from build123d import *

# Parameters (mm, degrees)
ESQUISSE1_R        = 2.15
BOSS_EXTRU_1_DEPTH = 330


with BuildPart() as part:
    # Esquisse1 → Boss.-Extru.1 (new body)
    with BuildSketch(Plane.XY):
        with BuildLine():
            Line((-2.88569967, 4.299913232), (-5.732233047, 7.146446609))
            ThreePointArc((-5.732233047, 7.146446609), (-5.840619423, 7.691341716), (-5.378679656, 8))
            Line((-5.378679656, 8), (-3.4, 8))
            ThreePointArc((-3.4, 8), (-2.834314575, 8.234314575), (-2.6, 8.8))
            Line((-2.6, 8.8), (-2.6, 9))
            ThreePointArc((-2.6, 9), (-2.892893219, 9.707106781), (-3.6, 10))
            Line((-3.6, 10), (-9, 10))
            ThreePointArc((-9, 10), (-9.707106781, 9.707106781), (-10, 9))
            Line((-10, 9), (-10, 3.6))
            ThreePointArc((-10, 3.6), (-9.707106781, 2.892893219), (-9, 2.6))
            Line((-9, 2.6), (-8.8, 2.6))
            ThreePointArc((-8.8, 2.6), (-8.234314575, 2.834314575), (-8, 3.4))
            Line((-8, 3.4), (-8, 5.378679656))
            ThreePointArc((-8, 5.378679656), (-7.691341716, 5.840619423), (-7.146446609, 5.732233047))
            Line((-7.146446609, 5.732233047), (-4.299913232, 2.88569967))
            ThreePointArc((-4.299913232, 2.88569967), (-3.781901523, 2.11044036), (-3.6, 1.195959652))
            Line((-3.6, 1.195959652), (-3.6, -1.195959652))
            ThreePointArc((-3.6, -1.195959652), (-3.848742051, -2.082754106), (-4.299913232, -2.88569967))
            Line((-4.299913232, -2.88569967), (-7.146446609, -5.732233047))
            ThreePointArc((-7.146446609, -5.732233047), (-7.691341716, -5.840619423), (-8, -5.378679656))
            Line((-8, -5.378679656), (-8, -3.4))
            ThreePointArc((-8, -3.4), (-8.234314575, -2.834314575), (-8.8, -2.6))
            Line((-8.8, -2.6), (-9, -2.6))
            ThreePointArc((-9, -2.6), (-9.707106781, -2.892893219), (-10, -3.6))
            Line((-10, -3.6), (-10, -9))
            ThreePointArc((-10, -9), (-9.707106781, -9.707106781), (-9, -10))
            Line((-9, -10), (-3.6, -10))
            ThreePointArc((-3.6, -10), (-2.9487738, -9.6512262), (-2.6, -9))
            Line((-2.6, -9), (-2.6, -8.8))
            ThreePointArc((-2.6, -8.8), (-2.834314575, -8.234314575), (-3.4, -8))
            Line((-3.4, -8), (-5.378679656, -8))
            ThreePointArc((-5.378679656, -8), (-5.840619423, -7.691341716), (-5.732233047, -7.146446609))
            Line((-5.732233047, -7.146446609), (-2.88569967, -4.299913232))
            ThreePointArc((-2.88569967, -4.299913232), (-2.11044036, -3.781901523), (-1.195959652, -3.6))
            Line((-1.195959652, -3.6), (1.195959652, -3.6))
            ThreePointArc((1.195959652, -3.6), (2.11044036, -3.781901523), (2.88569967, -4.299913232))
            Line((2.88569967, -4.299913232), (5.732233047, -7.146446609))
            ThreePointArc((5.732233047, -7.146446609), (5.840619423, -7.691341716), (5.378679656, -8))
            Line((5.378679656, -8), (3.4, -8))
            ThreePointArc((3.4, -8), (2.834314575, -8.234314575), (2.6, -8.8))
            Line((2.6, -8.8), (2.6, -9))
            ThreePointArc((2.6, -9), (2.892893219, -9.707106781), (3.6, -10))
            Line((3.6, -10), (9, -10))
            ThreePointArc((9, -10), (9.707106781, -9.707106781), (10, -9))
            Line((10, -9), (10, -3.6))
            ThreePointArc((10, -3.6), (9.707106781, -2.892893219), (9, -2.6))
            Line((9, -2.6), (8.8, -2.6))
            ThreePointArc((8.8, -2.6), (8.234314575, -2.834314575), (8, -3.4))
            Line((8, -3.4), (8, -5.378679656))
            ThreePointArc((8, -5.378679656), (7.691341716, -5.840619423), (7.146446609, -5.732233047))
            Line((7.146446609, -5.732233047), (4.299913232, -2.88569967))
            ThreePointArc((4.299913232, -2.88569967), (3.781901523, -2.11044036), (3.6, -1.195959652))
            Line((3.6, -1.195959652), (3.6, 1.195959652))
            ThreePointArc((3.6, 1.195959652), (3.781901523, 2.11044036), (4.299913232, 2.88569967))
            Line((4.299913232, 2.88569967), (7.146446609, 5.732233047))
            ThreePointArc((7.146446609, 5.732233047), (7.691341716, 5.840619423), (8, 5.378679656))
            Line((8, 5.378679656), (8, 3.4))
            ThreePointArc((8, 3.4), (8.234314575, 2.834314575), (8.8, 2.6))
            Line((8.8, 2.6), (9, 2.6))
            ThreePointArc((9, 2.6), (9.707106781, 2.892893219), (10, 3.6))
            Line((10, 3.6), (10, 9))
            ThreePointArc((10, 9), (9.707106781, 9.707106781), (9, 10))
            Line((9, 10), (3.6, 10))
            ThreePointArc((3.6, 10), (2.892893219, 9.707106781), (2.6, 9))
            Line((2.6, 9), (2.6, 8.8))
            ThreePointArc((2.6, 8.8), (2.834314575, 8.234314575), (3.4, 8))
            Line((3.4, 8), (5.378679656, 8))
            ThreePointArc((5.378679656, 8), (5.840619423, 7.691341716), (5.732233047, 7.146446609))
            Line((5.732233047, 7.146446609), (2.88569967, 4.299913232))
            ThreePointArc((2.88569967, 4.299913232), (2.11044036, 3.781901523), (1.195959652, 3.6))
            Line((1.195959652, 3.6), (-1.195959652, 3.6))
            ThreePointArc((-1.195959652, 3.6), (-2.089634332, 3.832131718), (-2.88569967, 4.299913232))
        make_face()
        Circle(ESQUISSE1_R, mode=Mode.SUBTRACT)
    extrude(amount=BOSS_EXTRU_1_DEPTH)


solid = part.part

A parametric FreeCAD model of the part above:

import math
import FreeCAD as App
import Part
import Sketcher

V = App.Vector
Q = App.Units.Quantity

doc = App.newDocument("Part")
body = doc.addObject("PartDesign::Body", "Body")

# Sketch on XY plane
sketch1 = body.newObject("Sketcher::SketchObject", "Sketch")
sketch1.AttachmentSupport = (doc.getObject("XY_Plane"), [""])
sketch1.MapMode = "FlatFace"
sketch1.addGeometry(Part.LineSegment(V(-2.89, 4.3, 0), V(-5.73, 7.15, 0)), False)
sketch1.addGeometry(Part.ArcOfCircle(Part.Circle(V(-5.38, 7.5, 0), V(0, 0, 1), 0.5), math.radians(90), math.radians(225)), False)
sketch1.addGeometry(Part.LineSegment(V(-5.38, 8, 0), V(-3.4, 8, 0)), False)
sketch1.addGeometry(Part.ArcOfCircle(Part.Circle(V(-3.4, 8.8, 0), V(0, 0, 1), 0.8), math.radians(-90), math.radians(0)), False)
sketch1.addGeometry(Part.LineSegment(V(-2.6, 8.8, 0), V(-2.6, 9, 0)), False)
sketch1.addGeometry(Part.ArcOfCircle(Part.Circle(V(-3.6, 9, 0), V(0, 0, 1), 1), math.radians(0), math.radians(90)), False)
sketch1.addGeometry(Part.LineSegment(V(-3.6, 10, 0), V(-9, 10, 0)), False)
sketch1.addGeometry(Part.ArcOfCircle(Part.Circle(V(-9, 9, 0), V(0, 0, 1), 1), math.radians(90), math.radians(180)), False)
sketch1.addGeometry(Part.LineSegment(V(-10, 9, 0), V(-10, 3.6, 0)), False)
sketch1.addGeometry(Part.ArcOfCircle(Part.Circle(V(-9, 3.6, 0), V(0, 0, 1), 1), math.radians(-180), math.radians(-90)), False)
sketch1.addGeometry(Part.LineSegment(V(-9, 2.6, 0), V(-8.8, 2.6, 0)), False)
sketch1.addGeometry(Part.ArcOfCircle(Part.Circle(V(-8.8, 3.4, 0), V(0, 0, 1), 0.8), math.radians(-90), math.radians(0)), False)
sketch1.addGeometry(Part.LineSegment(V(-8, 3.4, 0), V(-8, 5.38, 0)), False)
sketch1.addGeometry(Part.ArcOfCircle(Part.Circle(V(-7.5, 5.38, 0), V(0, 0, 1), 0.5), math.radians(45), math.radians(180)), False)
sketch1.addGeometry(Part.LineSegment(V(-7.15, 5.73, 0), V(-4.3, 2.89, 0)), False)
sketch1.addGeometry(Part.ArcOfCircle(Part.Circle(V(-5.99, 1.2, 0), V(0, 0, 1), 2.39), math.radians(0), math.radians(45)), False)
sketch1.addGeometry(Part.LineSegment(V(-3.6, 1.2, 0), V(-3.6, -1.2, 0)), False)
sketch1.addGeometry(Part.ArcOfCircle(Part.Circle(V(-7.43, -0.6, 0), V(0, 0, 1), 3.87), math.radians(-36), math.radians(-9)), False)
sketch1.addGeometry(Part.LineSegment(V(-4.3, -2.89, 0), V(-7.15, -5.73, 0)), False)
sketch1.addGeometry(Part.ArcOfCircle(Part.Circle(V(-7.5, -5.38, 0), V(0, 0, 1), 0.5), math.radians(180), math.radians(315)), False)
sketch1.addGeometry(Part.LineSegment(V(-8, -5.38, 0), V(-8, -3.4, 0)), False)
sketch1.addGeometry(Part.ArcOfCircle(Part.Circle(V(-8.8, -3.4, 0), V(0, 0, 1), 0.8), math.radians(0), math.radians(90)), False)
sketch1.addGeometry(Part.LineSegment(V(-8.8, -2.6, 0), V(-9, -2.6, 0)), False)
sketch1.addGeometry(Part.ArcOfCircle(Part.Circle(V(-9, -3.6, 0), V(0, 0, 1), 1), math.radians(90), math.radians(180)), False)
sketch1.addGeometry(Part.LineSegment(V(-10, -3.6, 0), V(-10, -9, 0)), False)
sketch1.addGeometry(Part.ArcOfCircle(Part.Circle(V(-9, -9, 0), V(0, 0, 1), 1), math.radians(-180), math.radians(-90)), False)
sketch1.addGeometry(Part.LineSegment(V(-9, -10, 0), V(-3.6, -10, 0)), False)
sketch1.addGeometry(Part.ArcOfCircle(Part.Circle(V(-3.85, -8.75, 0), V(0, 0, 1), 1.28), math.radians(-79), math.radians(-11)), False)
sketch1.addGeometry(Part.LineSegment(V(-2.6, -9, 0), V(-2.6, -8.8, 0)), False)
sketch1.addGeometry(Part.ArcOfCircle(Part.Circle(V(-3.4, -8.8, 0), V(0, 0, 1), 0.8), math.radians(0), math.radians(90)), False)
sketch1.addGeometry(Part.LineSegment(V(-3.4, -8, 0), V(-5.38, -8, 0)), False)
sketch1.addGeometry(Part.ArcOfCircle(Part.Circle(V(-5.38, -7.5, 0), V(0, 0, 1), 0.5), math.radians(135), math.radians(270)), False)
sketch1.addGeometry(Part.LineSegment(V(-5.73, -7.15, 0), V(-2.89, -4.3, 0)), False)
sketch1.addGeometry(Part.ArcOfCircle(Part.Circle(V(-1.2, -5.99, 0), V(0, 0, 1), 2.39), math.radians(90), math.radians(135)), False)
sketch1.addGeometry(Part.LineSegment(V(-1.2, -3.6, 0), V(1.2, -3.6, 0)), False)
sketch1.addGeometry(Part.ArcOfCircle(Part.Circle(V(1.2, -5.99, 0), V(0, 0, 1), 2.39), math.radians(45), math.radians(90)), False)
sketch1.addGeometry(Part.LineSegment(V(2.89, -4.3, 0), V(5.73, -7.15, 0)), False)
sketch1.addGeometry(Part.ArcOfCircle(Part.Circle(V(5.38, -7.5, 0), V(0, 0, 1), 0.5), math.radians(-90), math.radians(45)), False)
sketch1.addGeometry(Part.LineSegment(V(5.38, -8, 0), V(3.4, -8, 0)), False)
sketch1.addGeometry(Part.ArcOfCircle(Part.Circle(V(3.4, -8.8, 0), V(0, 0, 1), 0.8), math.radians(90), math.radians(180)), False)
sketch1.addGeometry(Part.LineSegment(V(2.6, -8.8, 0), V(2.6, -9, 0)), False)
sketch1.addGeometry(Part.ArcOfCircle(Part.Circle(V(3.6, -9, 0), V(0, 0, 1), 1), math.radians(-180), math.radians(-90)), False)
sketch1.addGeometry(Part.LineSegment(V(3.6, -10, 0), V(9, -10, 0)), False)
sketch1.addGeometry(Part.ArcOfCircle(Part.Circle(V(9, -9, 0), V(0, 0, 1), 1), math.radians(-90), math.radians(0)), False)
sketch1.addGeometry(Part.LineSegment(V(10, -9, 0), V(10, -3.6, 0)), False)
sketch1.addGeometry(Part.ArcOfCircle(Part.Circle(V(9, -3.6, 0), V(0, 0, 1), 1), math.radians(0), math.radians(90)), False)
sketch1.addGeometry(Part.LineSegment(V(9, -2.6, 0), V(8.8, -2.6, 0)), False)
sketch1.addGeometry(Part.ArcOfCircle(Part.Circle(V(8.8, -3.4, 0), V(0, 0, 1), 0.8), math.radians(90), math.radians(180)), False)
sketch1.addGeometry(Part.LineSegment(V(8, -3.4, 0), V(8, -5.38, 0)), False)
sketch1.addGeometry(Part.ArcOfCircle(Part.Circle(V(7.5, -5.38, 0), V(0, 0, 1), 0.5), math.radians(-135), math.radians(0)), False)
sketch1.addGeometry(Part.LineSegment(V(7.15, -5.73, 0), V(4.3, -2.89, 0)), False)
sketch1.addGeometry(Part.ArcOfCircle(Part.Circle(V(5.99, -1.2, 0), V(0, 0, 1), 2.39), math.radians(-180), math.radians(-135)), False)
sketch1.addGeometry(Part.LineSegment(V(3.6, -1.2, 0), V(3.6, 1.2, 0)), False)
sketch1.addGeometry(Part.ArcOfCircle(Part.Circle(V(5.99, 1.2, 0), V(0, 0, 1), 2.39), math.radians(135), math.radians(180)), False)
sketch1.addGeometry(Part.LineSegment(V(4.3, 2.89, 0), V(7.15, 5.73, 0)), False)
sketch1.addGeometry(Part.ArcOfCircle(Part.Circle(V(7.5, 5.38, 0), V(0, 0, 1), 0.5), math.radians(0), math.radians(135)), False)
sketch1.addGeometry(Part.LineSegment(V(8, 5.38, 0), V(8, 3.4, 0)), False)
sketch1.addGeometry(Part.ArcOfCircle(Part.Circle(V(8.8, 3.4, 0), V(0, 0, 1), 0.8), math.radians(180), math.radians(270)), False)
sketch1.addGeometry(Part.LineSegment(V(8.8, 2.6, 0), V(9, 2.6, 0)), False)
sketch1.addGeometry(Part.ArcOfCircle(Part.Circle(V(9, 3.6, 0), V(0, 0, 1), 1), math.radians(-90), math.radians(0)), False)
sketch1.addGeometry(Part.LineSegment(V(10, 3.6, 0), V(10, 9, 0)), False)
sketch1.addGeometry(Part.ArcOfCircle(Part.Circle(V(9, 9, 0), V(0, 0, 1), 1), math.radians(0), math.radians(90)), False)
sketch1.addGeometry(Part.LineSegment(V(9, 10, 0), V(3.6, 10, 0)), False)
sketch1.addGeometry(Part.ArcOfCircle(Part.Circle(V(3.6, 9, 0), V(0, 0, 1), 1), math.radians(90), math.radians(180)), False)
sketch1.addGeometry(Part.LineSegment(V(2.6, 9, 0), V(2.6, 8.8, 0)), False)
sketch1.addGeometry(Part.ArcOfCircle(Part.Circle(V(3.4, 8.8, 0), V(0, 0, 1), 0.8), math.radians(180), math.radians(270)), False)
sketch1.addGeometry(Part.LineSegment(V(3.4, 8, 0), V(5.38, 8, 0)), False)
sketch1.addGeometry(Part.ArcOfCircle(Part.Circle(V(5.38, 7.5, 0), V(0, 0, 1), 0.5), math.radians(-45), math.radians(90)), False)
sketch1.addGeometry(Part.LineSegment(V(5.73, 7.15, 0), V(2.89, 4.3, 0)), False)
sketch1.addGeometry(Part.ArcOfCircle(Part.Circle(V(1.2, 5.99, 0), V(0, 0, 1), 2.39), math.radians(-90), math.radians(-45)), False)
sketch1.addGeometry(Part.LineSegment(V(1.2, 3.6, 0), V(-1.2, 3.6, 0)), False)
sketch1.addGeometry(Part.ArcOfCircle(Part.Circle(V(-0.81, 6.92, 0), V(0, 0, 1), 3.34), math.radians(-128), math.radians(-97)), False)
sketch1.addGeometry(Part.Circle(V(0, 0, 0), V(0, 0, 1), 2.15), False)
sketch1.addConstraint(Sketcher.Constraint("Tangent", 0, 2, 1, 2))
sketch1.addConstraint(Sketcher.Constraint("Tangent", 1, 1, 2, 1))
sketch1.addConstraint(Sketcher.Constraint("Tangent", 2, 2, 3, 1))
sketch1.addConstraint(Sketcher.Constraint("Tangent", 3, 2, 4, 1))
sketch1.addConstraint(Sketcher.Constraint("Tangent", 4, 2, 5, 1))
sketch1.addConstraint(Sketcher.Constraint("Tangent", 5, 2, 6, 1))
sketch1.addConstraint(Sketcher.Constraint("Tangent", 6, 2, 7, 1))
sketch1.addConstraint(Sketcher.Constraint("Tangent", 7, 2, 8, 1))
sketch1.addConstraint(Sketcher.Constraint("Tangent", 8, 2, 9, 1))
sketch1.addConstraint(Sketcher.Constraint("Tangent", 9, 2, 10, 1))
sketch1.addConstraint(Sketcher.Constraint("Tangent", 10, 2, 11, 1))
sketch1.addConstraint(Sketcher.Constraint("Tangent", 11, 2, 12, 1))
sketch1.addConstraint(Sketcher.Constraint("Tangent", 12, 2, 13, 2))
sketch1.addConstraint(Sketcher.Constraint("Tangent", 13, 1, 14, 1))
sketch1.addConstraint(Sketcher.Constraint("Tangent", 14, 2, 15, 2))
sketch1.addConstraint(Sketcher.Constraint("Tangent", 15, 1, 16, 1))
sketch1.addConstraint(Sketcher.Constraint("Coincident", 16, 2, 17, 2))
sketch1.addConstraint(Sketcher.Constraint("Coincident", 17, 1, 18, 1))
sketch1.addConstraint(Sketcher.Constraint("Tangent", 18, 2, 19, 2))
sketch1.addConstraint(Sketcher.Constraint("Tangent", 19, 1, 20, 1))
sketch1.addConstraint(Sketcher.Constraint("Tangent", 20, 2, 21, 1))
sketch1.addConstraint(Sketcher.Constraint("Tangent", 21, 2, 22, 1))
sketch1.addConstraint(Sketcher.Constraint("Tangent", 22, 2, 23, 1))
sketch1.addConstraint(Sketcher.Constraint("Tangent", 23, 2, 24, 1))
sketch1.addConstraint(Sketcher.Constraint("Tangent", 24, 2, 25, 1))
sketch1.addConstraint(Sketcher.Constraint("Tangent", 25, 2, 26, 1))
sketch1.addConstraint(Sketcher.Constraint("Coincident", 26, 2, 27, 1))
sketch1.addConstraint(Sketcher.Constraint("Coincident", 27, 2, 28, 1))
sketch1.addConstraint(Sketcher.Constraint("Tangent", 28, 2, 29, 1))
sketch1.addConstraint(Sketcher.Constraint("Tangent", 29, 2, 30, 1))
sketch1.addConstraint(Sketcher.Constraint("Tangent", 30, 2, 31, 2))
sketch1.addConstraint(Sketcher.Constraint("Tangent", 31, 1, 32, 1))
sketch1.addConstraint(Sketcher.Constraint("Tangent", 32, 2, 33, 2))
sketch1.addConstraint(Sketcher.Constraint("Tangent", 33, 1, 34, 1))
sketch1.addConstraint(Sketcher.Constraint("Tangent", 34, 2, 35, 2))
sketch1.addConstraint(Sketcher.Constraint("Tangent", 35, 1, 36, 1))
sketch1.addConstraint(Sketcher.Constraint("Tangent", 36, 2, 37, 2))
sketch1.addConstraint(Sketcher.Constraint("Tangent", 37, 1, 38, 1))
sketch1.addConstraint(Sketcher.Constraint("Tangent", 38, 2, 39, 1))
sketch1.addConstraint(Sketcher.Constraint("Tangent", 39, 2, 40, 1))
sketch1.addConstraint(Sketcher.Constraint("Tangent", 40, 2, 41, 1))
sketch1.addConstraint(Sketcher.Constraint("Tangent", 41, 2, 42, 1))
sketch1.addConstraint(Sketcher.Constraint("Tangent", 42, 2, 43, 1))
sketch1.addConstraint(Sketcher.Constraint("Tangent", 43, 2, 44, 1))
sketch1.addConstraint(Sketcher.Constraint("Tangent", 44, 2, 45, 1))
sketch1.addConstraint(Sketcher.Constraint("Tangent", 45, 2, 46, 1))
sketch1.addConstraint(Sketcher.Constraint("Tangent", 46, 2, 47, 1))
sketch1.addConstraint(Sketcher.Constraint("Tangent", 47, 2, 48, 1))
sketch1.addConstraint(Sketcher.Constraint("Tangent", 48, 2, 49, 2))
sketch1.addConstraint(Sketcher.Constraint("Tangent", 49, 1, 50, 1))
sketch1.addConstraint(Sketcher.Constraint("Tangent", 50, 2, 51, 2))
sketch1.addConstraint(Sketcher.Constraint("Tangent", 51, 1, 52, 1))
sketch1.addConstraint(Sketcher.Constraint("Tangent", 52, 2, 53, 2))
sketch1.addConstraint(Sketcher.Constraint("Tangent", 53, 1, 54, 1))
sketch1.addConstraint(Sketcher.Constraint("Tangent", 54, 2, 55, 2))
sketch1.addConstraint(Sketcher.Constraint("Tangent", 55, 1, 56, 1))
sketch1.addConstraint(Sketcher.Constraint("Tangent", 56, 2, 57, 1))
sketch1.addConstraint(Sketcher.Constraint("Tangent", 57, 2, 58, 1))
sketch1.addConstraint(Sketcher.Constraint("Tangent", 58, 2, 59, 1))
sketch1.addConstraint(Sketcher.Constraint("Tangent", 59, 2, 60, 1))
sketch1.addConstraint(Sketcher.Constraint("Tangent", 60, 2, 61, 1))
sketch1.addConstraint(Sketcher.Constraint("Tangent", 61, 2, 62, 1))
sketch1.addConstraint(Sketcher.Constraint("Tangent", 62, 2, 63, 1))
sketch1.addConstraint(Sketcher.Constraint("Tangent", 63, 2, 64, 1))
sketch1.addConstraint(Sketcher.Constraint("Tangent", 64, 2, 65, 1))
sketch1.addConstraint(Sketcher.Constraint("Tangent", 65, 2, 66, 1))
sketch1.addConstraint(Sketcher.Constraint("Tangent", 66, 2, 67, 2))
sketch1.addConstraint(Sketcher.Constraint("Tangent", 67, 1, 68, 1))
sketch1.addConstraint(Sketcher.Constraint("Tangent", 68, 2, 69, 2))
sketch1.addConstraint(Sketcher.Constraint("Tangent", 69, 1, 70, 1))
sketch1.addConstraint(Sketcher.Constraint("Coincident", 70, 2, 71, 2))
sketch1.addConstraint(Sketcher.Constraint("Coincident", 71, 1, 0, 1))
sketch1.addConstraint(Sketcher.Constraint("Horizontal", 2))
sketch1.addConstraint(Sketcher.Constraint("Vertical", 4))
sketch1.addConstraint(Sketcher.Constraint("Horizontal", 6))
sketch1.addConstraint(Sketcher.Constraint("Vertical", 8))
sketch1.addConstraint(Sketcher.Constraint("Horizontal", 10))
sketch1.addConstraint(Sketcher.Constraint("Vertical", 12))
sketch1.addConstraint(Sketcher.Constraint("Vertical", 16))
sketch1.addConstraint(Sketcher.Constraint("Vertical", 20))
sketch1.addConstraint(Sketcher.Constraint("Horizontal", 22))
sketch1.addConstraint(Sketcher.Constraint("Vertical", 24))
sketch1.addConstraint(Sketcher.Constraint("Horizontal", 26))
sketch1.addConstraint(Sketcher.Constraint("Vertical", 28))
sketch1.addConstraint(Sketcher.Constraint("Horizontal", 30))
sketch1.addConstraint(Sketcher.Constraint("Horizontal", 34))
sketch1.addConstraint(Sketcher.Constraint("Horizontal", 38))
sketch1.addConstraint(Sketcher.Constraint("Vertical", 40))
sketch1.addConstraint(Sketcher.Constraint("Horizontal", 42))
sketch1.addConstraint(Sketcher.Constraint("Vertical", 44))
sketch1.addConstraint(Sketcher.Constraint("Horizontal", 46))
sketch1.addConstraint(Sketcher.Constraint("Vertical", 48))
sketch1.addConstraint(Sketcher.Constraint("Vertical", 52))
sketch1.addConstraint(Sketcher.Constraint("Vertical", 56))
sketch1.addConstraint(Sketcher.Constraint("Horizontal", 58))
sketch1.addConstraint(Sketcher.Constraint("Vertical", 60))
sketch1.addConstraint(Sketcher.Constraint("Horizontal", 62))
sketch1.addConstraint(Sketcher.Constraint("Vertical", 64))
sketch1.addConstraint(Sketcher.Constraint("Horizontal", 66))
sketch1.addConstraint(Sketcher.Constraint("Horizontal", 70))
sketch1.addConstraint(Sketcher.Constraint("Coincident", 72, 3, -1, 1))
sketch1.addConstraint(Sketcher.Constraint("Equal", 5, 7))
sketch1.addConstraint(Sketcher.Constraint("Equal", 7, 9))
sketch1.addConstraint(Sketcher.Constraint("Equal", 3, 11))
sketch1.addConstraint(Sketcher.Constraint("Equal", 1, 13))
sketch1.addConstraint(Sketcher.Constraint("Equal", 13, 19))
sketch1.addConstraint(Sketcher.Constraint("Equal", 11, 21))
sketch1.addConstraint(Sketcher.Constraint("Equal", 9, 23))
sketch1.addConstraint(Sketcher.Constraint("Equal", 23, 25))
sketch1.addConstraint(Sketcher.Constraint("Equal", 21, 29))
sketch1.addConstraint(Sketcher.Constraint("Equal", 19, 31))
sketch1.addConstraint(Sketcher.Constraint("Equal", 15, 33))
sketch1.addConstraint(Sketcher.Constraint("Equal", 33, 35))
sketch1.addConstraint(Sketcher.Constraint("Equal", 31, 37))
sketch1.addConstraint(Sketcher.Constraint("Equal", 29, 39))
sketch1.addConstraint(Sketcher.Constraint("Equal", 25, 41))
sketch1.addConstraint(Sketcher.Constraint("Equal", 41, 43))
sketch1.addConstraint(Sketcher.Constraint("Equal", 43, 45))
sketch1.addConstraint(Sketcher.Constraint("Equal", 39, 47))
sketch1.addConstraint(Sketcher.Constraint("Equal", 37, 49))
sketch1.addConstraint(Sketcher.Constraint("Equal", 35, 51))
sketch1.addConstraint(Sketcher.Constraint("Equal", 51, 53))
sketch1.addConstraint(Sketcher.Constraint("Equal", 49, 55))
sketch1.addConstraint(Sketcher.Constraint("Equal", 47, 57))
sketch1.addConstraint(Sketcher.Constraint("Equal", 45, 59))
sketch1.addConstraint(Sketcher.Constraint("Equal", 59, 61))
sketch1.addConstraint(Sketcher.Constraint("Equal", 61, 63))
sketch1.addConstraint(Sketcher.Constraint("Equal", 57, 65))
sketch1.addConstraint(Sketcher.Constraint("Equal", 55, 67))
sketch1.addConstraint(Sketcher.Constraint("Equal", 53, 69))
sketch1.addConstraint(Sketcher.Constraint("Symmetric", 1, 3, 37, 3, -1, 1))
sketch1.addConstraint(Sketcher.Constraint("Symmetric", 5, 3, 41, 3, -1, 1))
sketch1.addConstraint(Sketcher.Constraint("Symmetric", 9, 3, 45, 3, -1, 1))
sketch1.addConstraint(Sketcher.Constraint("Symmetric", 13, 3, 49, 3, -1, 1))
sketch1.addConstraint(Sketcher.Constraint("Symmetric", 15, 3, 51, 3, -1, 1))
sketch1.addConstraint(Sketcher.Constraint("Symmetric", 19, 3, 55, 3, -1, 1))
sketch1.addConstraint(Sketcher.Constraint("Symmetric", 23, 3, 59, 3, -1, 1))
sketch1.addConstraint(Sketcher.Constraint("Symmetric", 29, 3, 65, 3, -1, 1))
sketch1.addConstraint(Sketcher.Constraint("Symmetric", 33, 3, 69, 3, -1, 1))
sketch1.addConstraint(Sketcher.Constraint("Symmetric", 17, 1, 53, 1, -1, 1))
sketch1.addConstraint(Sketcher.Constraint("Symmetric", 26, 2, 62, 2, -1, 1))
sketch1.addConstraint(Sketcher.Constraint("Symmetric", 35, 1, 71, 1, -1, 1))
sketch1.addConstraint(Sketcher.Constraint("Symmetric", 31, 3, 37, 3, -2))
sketch1.addConstraint(Sketcher.Constraint("Symmetric", 25, 3, 43, 3, -2))
sketch1.addConstraint(Sketcher.Constraint("Symmetric", 21, 3, 47, 3, -2))
sketch1.addConstraint(Sketcher.Constraint("Symmetric", 27, 2, 40, 2, -2))
sketch1.addConstraint(Sketcher.Constraint("Symmetric", 18, 2, 49, 1, -2))
sketch1.addConstraint(Sketcher.Constraint("Symmetric", 0, 2, 67, 1, -2))
sketch1.addConstraint(Sketcher.Constraint("Parallel", 0, 14))
sketch1.addConstraint(Sketcher.Constraint("Perpendicular", 14, 18))
sketch1.addConstraint(Sketcher.Constraint("Horizontal", 51, 3, 16, 2))
sketch1.addConstraint(Sketcher.Constraint("Horizontal", 23, 2, 33, 1))
sketch1.addConstraint(Sketcher.Constraint("Vertical", 5, 2, 15, 1))
sketch1.addConstraint(Sketcher.Constraint("Vertical", 33, 1, 70, 2))
sketch1.addConstraint(Sketcher.Constraint("Equal", 58, 4))
sketch1.addConstraint(Sketcher.Constraint("Equal", 62, 8))
sketch1.addConstraint(Sketcher.Constraint("Equal", 66, 12))
sketch1.addConstraint(Sketcher.Constraint("Equal", 70, 16))
sketch1.addConstraint(Sketcher.Constraint("Radius", 5, Q("1 mm")))
sketch1.addConstraint(Sketcher.Constraint("Diameter", 72, Q("4.3 mm")))
sketch1.addConstraint(Sketcher.Constraint("Radius", 1, Q("0.5 mm")))
sketch1.addConstraint(Sketcher.Constraint("Radius", 3, Q("0.8 mm")))
sketch1.addConstraint(Sketcher.Constraint("DistanceX", 6, 2, 6, 1, Q("5.4 mm")))
sketch1.addConstraint(Sketcher.Constraint("DistanceX", 10, 1, 10, 2, Q("0.2 mm")))
sketch1.addConstraint(Sketcher.Constraint("DistanceY", -1, 1, 5, 3, Q("9 mm")))
sketch1.addConstraint(Sketcher.Constraint("Radius", 27, Q("1.275889 mm")))
sketch1.addConstraint(Sketcher.Constraint("Radius", 15, Q("2.389653 mm")))
sketch1.addConstraint(Sketcher.Constraint("Radius", 17, Q("3.871507 mm")))
sketch1.addConstraint(Sketcher.Constraint("Radius", 71, Q("3.342434 mm")))
sketch1.addConstraint(Sketcher.Constraint("DistanceX", 2, 1, 2, 2, Q("1.97868 mm")))
pad1 = body.newObject("PartDesign::Pad", "Pad")
pad1.Profile = sketch1
pad1.Length = 330

doc.recompute()
